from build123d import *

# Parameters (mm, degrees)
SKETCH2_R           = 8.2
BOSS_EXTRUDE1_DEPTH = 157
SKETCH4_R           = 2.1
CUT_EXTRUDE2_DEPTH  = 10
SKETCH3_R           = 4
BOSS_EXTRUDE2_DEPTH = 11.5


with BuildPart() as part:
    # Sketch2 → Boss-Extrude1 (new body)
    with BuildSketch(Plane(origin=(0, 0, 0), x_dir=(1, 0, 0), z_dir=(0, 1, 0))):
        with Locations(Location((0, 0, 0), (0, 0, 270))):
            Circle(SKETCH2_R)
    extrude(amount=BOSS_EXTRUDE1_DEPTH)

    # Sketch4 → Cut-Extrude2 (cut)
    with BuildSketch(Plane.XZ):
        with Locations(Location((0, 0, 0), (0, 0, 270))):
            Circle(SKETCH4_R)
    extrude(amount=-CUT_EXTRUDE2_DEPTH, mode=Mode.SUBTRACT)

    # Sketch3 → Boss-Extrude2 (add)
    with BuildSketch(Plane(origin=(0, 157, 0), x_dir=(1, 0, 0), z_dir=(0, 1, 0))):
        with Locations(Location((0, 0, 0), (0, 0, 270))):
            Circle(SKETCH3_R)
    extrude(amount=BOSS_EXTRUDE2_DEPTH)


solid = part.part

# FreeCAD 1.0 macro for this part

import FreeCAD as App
import Part
import Sketcher

V = App.Vector

doc = App.newDocument("Part")
body = doc.addObject("PartDesign::Body", "Body")

# Sketch on XZ plane
sketch1 = body.newObject("Sketcher::SketchObject", "Sketch")
sketch1.AttachmentSupport = (doc.getObject("XZ_Plane"), [""])
sketch1.MapMode = "FlatFace"
sketch1.addGeometry(Part.Circle(V(0, 0, 0), V(0, 0, 1), 8), False)
sketch1.addConstraint([
    Sketcher.Constraint("Coincident", 0, 3, -1, 1),
    Sketcher.Constraint("Diameter", 0, 16.4),
])
pad1 = body.newObject("PartDesign::Pad", "Pad")
pad1.Profile = sketch1
pad1.Length = 157
pad1.Reversed = True

# Sketch on XZ plane
sketch2 = body.newObject("Sketcher::SketchObject", "Sketch001")
sketch2.AttachmentSupport = (doc.getObject("XZ_Plane"), [""])
sketch2.MapMode = "FlatFace"
sketch2.addGeometry(Part.Circle(V(0, 0, 0), V(0, 0, 1), 2.1), False)
sketch2.addConstraint([
    Sketcher.Constraint("Coincident", 0, 3, -1, 1),
    Sketcher.Constraint("Diameter", 0, 4.2),
])
pocket1 = body.newObject("PartDesign::Pocket", "Pocket")
pocket1.Profile = sketch2
pocket1.Length = 10

# Sketch on XZ plane
sketch3 = body.newObject("Sketcher::SketchObject", "Sketch002")
sketch3.AttachmentSupport = (doc.getObject("XZ_Plane"), [""])
sketch3.MapMode = "FlatFace"
sketch3.AttachmentOffset = App.Placement(V(0, 0, -157), App.Rotation())
sketch3.addGeometry(Part.Circle(V(0, 0, 0), V(0, 0, 1), 4), False)
sketch3.addConstraint([
    Sketcher.Constraint("Coincident", 0, 3, -1, 1),
    Sketcher.Constraint("Diameter", 0, 8.0),
])
pad2 = body.newObject("PartDesign::Pad", "Pad001")
pad2.Profile = sketch3
pad2.Length = 11.5
pad2.Reversed = True

doc.recompute()
